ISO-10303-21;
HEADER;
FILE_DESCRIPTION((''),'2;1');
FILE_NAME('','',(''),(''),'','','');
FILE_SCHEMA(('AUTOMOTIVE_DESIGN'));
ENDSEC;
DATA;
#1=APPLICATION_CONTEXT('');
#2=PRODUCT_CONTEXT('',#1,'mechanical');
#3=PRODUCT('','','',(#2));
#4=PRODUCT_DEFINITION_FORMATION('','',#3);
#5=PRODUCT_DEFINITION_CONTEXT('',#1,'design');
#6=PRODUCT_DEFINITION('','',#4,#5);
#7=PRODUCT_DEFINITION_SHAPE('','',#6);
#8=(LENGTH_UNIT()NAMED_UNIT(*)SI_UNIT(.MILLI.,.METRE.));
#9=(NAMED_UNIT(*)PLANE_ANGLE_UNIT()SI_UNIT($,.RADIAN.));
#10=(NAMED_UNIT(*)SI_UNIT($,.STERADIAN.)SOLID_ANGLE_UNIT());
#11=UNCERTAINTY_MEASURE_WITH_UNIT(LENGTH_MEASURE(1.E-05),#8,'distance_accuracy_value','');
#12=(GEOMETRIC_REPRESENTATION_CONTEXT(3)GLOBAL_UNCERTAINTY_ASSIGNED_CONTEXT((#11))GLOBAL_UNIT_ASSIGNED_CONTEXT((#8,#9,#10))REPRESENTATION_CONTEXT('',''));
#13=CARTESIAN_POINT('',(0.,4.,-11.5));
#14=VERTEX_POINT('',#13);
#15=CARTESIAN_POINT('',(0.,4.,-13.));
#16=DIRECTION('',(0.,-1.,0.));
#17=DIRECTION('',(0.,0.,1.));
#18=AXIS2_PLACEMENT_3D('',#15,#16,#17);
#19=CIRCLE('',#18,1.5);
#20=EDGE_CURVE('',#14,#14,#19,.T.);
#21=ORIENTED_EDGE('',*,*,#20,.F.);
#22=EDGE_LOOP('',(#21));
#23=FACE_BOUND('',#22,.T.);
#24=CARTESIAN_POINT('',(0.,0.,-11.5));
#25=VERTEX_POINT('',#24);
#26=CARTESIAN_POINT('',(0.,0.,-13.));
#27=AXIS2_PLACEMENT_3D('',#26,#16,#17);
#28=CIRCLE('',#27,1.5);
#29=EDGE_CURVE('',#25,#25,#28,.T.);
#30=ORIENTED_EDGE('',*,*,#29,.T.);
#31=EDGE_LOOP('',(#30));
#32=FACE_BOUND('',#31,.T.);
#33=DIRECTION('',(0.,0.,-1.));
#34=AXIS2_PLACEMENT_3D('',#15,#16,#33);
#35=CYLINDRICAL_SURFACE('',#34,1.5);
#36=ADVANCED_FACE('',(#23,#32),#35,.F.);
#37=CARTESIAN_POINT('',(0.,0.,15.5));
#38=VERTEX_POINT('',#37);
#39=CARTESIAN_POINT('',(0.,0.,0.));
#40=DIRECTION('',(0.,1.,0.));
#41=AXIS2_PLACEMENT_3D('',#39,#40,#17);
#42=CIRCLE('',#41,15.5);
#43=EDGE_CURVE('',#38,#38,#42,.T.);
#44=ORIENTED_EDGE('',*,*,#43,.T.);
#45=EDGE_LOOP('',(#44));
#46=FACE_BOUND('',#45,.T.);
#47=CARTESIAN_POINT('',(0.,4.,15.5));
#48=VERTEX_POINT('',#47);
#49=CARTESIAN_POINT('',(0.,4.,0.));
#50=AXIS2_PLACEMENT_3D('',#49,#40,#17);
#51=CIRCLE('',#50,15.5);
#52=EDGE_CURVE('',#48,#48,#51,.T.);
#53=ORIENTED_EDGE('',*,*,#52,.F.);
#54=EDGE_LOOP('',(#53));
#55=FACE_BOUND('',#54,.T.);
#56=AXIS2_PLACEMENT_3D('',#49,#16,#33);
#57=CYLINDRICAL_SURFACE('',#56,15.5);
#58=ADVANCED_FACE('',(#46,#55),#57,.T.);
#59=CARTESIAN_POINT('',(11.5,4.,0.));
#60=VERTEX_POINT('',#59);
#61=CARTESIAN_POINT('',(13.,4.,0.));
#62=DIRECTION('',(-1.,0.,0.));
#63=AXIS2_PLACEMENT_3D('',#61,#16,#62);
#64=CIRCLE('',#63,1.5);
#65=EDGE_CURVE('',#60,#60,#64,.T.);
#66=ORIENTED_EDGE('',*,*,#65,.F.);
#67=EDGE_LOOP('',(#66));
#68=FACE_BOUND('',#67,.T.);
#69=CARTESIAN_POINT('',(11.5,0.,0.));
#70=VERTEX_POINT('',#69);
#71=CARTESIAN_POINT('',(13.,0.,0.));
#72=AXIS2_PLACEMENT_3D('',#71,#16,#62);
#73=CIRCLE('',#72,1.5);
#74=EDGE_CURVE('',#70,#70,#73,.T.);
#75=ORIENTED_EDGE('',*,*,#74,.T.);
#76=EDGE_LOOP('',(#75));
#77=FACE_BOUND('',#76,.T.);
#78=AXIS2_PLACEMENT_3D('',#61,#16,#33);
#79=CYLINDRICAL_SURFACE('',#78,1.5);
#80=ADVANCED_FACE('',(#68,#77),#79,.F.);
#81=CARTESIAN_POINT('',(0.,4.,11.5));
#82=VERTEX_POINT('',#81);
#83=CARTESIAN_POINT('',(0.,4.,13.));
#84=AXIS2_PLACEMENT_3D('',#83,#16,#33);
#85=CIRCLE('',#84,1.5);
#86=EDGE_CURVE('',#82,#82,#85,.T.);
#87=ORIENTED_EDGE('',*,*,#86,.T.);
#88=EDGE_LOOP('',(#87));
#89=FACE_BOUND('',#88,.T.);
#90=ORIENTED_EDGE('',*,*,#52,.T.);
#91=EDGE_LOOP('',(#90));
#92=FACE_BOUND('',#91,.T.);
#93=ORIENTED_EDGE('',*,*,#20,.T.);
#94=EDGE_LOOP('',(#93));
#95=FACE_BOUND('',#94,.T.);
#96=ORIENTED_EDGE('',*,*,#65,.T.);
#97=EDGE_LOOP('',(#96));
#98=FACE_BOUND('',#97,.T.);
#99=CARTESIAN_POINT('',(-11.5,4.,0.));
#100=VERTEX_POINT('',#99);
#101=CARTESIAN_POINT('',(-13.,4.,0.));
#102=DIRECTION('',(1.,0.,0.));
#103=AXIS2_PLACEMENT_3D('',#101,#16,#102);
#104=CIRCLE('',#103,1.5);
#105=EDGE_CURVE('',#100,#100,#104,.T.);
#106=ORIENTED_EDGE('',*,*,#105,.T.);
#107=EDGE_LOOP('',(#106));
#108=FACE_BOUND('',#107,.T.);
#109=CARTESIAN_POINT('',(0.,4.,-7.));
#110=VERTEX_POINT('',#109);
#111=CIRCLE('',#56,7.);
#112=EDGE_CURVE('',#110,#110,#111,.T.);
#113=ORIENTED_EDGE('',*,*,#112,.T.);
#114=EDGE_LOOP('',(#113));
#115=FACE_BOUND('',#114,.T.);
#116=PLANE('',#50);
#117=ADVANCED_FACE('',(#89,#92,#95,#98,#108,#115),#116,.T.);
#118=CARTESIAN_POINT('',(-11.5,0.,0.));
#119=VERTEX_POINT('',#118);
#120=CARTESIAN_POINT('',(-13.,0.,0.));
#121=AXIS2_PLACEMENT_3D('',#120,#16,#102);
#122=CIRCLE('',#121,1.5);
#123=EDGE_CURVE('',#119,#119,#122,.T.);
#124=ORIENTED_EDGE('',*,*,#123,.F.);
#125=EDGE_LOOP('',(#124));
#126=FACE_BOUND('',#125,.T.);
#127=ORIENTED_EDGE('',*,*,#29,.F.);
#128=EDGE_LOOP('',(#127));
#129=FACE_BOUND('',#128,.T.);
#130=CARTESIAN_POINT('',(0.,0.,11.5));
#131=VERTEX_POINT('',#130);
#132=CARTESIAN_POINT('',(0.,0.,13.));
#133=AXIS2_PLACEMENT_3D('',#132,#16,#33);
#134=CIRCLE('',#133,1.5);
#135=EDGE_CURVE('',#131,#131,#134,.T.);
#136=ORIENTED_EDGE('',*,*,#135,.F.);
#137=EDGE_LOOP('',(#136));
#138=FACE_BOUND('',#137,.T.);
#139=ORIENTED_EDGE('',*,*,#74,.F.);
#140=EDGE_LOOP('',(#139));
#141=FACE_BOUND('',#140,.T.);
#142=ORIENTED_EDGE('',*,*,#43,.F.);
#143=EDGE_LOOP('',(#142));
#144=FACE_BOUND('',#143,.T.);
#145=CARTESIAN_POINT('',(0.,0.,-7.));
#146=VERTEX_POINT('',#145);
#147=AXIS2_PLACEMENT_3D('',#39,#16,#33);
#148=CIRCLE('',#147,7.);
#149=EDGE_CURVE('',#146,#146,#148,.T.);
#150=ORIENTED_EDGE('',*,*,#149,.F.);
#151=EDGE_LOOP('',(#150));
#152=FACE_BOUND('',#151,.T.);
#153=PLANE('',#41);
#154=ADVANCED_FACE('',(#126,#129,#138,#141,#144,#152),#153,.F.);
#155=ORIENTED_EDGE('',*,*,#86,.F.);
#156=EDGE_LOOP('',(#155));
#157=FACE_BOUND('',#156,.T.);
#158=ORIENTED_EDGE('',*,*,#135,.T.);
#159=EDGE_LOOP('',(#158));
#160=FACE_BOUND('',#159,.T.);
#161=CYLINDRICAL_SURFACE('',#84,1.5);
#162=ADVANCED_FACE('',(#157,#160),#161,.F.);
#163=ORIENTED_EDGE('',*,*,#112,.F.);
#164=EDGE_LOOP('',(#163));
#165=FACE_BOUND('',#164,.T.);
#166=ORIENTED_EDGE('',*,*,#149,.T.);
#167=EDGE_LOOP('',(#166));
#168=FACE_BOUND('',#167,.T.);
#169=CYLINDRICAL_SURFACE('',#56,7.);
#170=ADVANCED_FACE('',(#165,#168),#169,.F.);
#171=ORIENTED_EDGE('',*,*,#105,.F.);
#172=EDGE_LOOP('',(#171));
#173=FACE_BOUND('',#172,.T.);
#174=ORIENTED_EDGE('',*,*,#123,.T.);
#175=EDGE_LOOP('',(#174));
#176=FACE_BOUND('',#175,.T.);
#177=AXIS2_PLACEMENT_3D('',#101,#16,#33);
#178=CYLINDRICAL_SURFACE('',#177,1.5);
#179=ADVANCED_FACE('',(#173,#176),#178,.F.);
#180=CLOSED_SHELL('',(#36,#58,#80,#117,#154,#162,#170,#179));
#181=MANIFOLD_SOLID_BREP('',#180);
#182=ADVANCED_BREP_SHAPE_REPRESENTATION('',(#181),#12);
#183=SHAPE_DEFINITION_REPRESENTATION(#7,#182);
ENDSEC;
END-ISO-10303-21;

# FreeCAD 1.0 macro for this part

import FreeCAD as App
import Part
import Sketcher
from FreeCAD import Vector
Q = App.Units.Quantity

doc = App.newDocument("Part")
body = doc.addObject("PartDesign::Body", "Body")

# Sketch on XZ plane
sketch1 = body.newObject("Sketcher::SketchObject", "Sketch")
sketch1.AttachmentSupport = (doc.getObject("XZ_Plane"), [""])
sketch1.MapMode = "FlatFace"
sketch1.addGeometry(Part.Circle(Vector(0, 0, 0), Vector(0, 0, 1), 16), False)
sketch1.addConstraint(Sketcher.Constraint("Coincident", 0, 3, -1, 1))
sketch1.addConstraint(Sketcher.Constraint("Diameter", 0, Q("31 mm")))
pad1 = body.newObject("PartDesign::Pad", "Pad")
pad1.Profile = sketch1
pad1.Length = 4
pad1.Reversed = True

# Sketch on XZ plane
sketch2 = body.newObject("Sketcher::SketchObject", "Sketch001")
sketch2.AttachmentSupport = (doc.getObject("XZ_Plane"), [""])
sketch2.MapMode = "FlatFace"
sketch2.addGeometry(Part.Circle(Vector(0, 0, 0), Vector(0, 0, 1), 7), False)
sketch2.addConstraint(Sketcher.Constraint("Coincident", 0, 3, -1, 1))
sketch2.addConstraint(Sketcher.Constraint("Diameter", 0, Q("14 mm")))
pocket1 = body.newObject("PartDesign::Pocket", "Pocket")
pocket1.Profile = sketch2
pocket1.Type = "ThroughAll"

# Sketch on XZ plane
sketch3 = body.newObject("Sketcher::SketchObject", "Sketch002")
sketch3.AttachmentSupport = (doc.getObject("XZ_Plane"), [""])
sketch3.MapMode = "FlatFace"
sketch3.addGeometry(Part.Circle(Vector(0, 13, 0), Vector(0, 0, 1), 1.5), False)
sketch3.addConstraint(Sketcher.Constraint("PointOnObject", 0, 3, -2))
sketch3.addConstraint(Sketcher.Constraint("Diameter", 0, Q("3 mm")))
sketch3.addConstraint(Sketcher.Constraint("DistanceY", -1, 1, 0, 3, Q("13 mm")))
pocket2 = body.newObject("PartDesign::Pocket", "Pocket001")
pocket2.Profile = sketch3
pocket2.Type = "ThroughAll"
doc.recompute()

polarpattern = body.newObject("PartDesign::PolarPattern", "PolarPattern")
polarpattern.Originals = [pocket2]
polarpattern.Axis = (doc.getObject("Y_Axis"), [""])
polarpattern.Angle = 360
polarpattern.Occurrences = 4
body.Tip = polarpattern

doc.recompute()
